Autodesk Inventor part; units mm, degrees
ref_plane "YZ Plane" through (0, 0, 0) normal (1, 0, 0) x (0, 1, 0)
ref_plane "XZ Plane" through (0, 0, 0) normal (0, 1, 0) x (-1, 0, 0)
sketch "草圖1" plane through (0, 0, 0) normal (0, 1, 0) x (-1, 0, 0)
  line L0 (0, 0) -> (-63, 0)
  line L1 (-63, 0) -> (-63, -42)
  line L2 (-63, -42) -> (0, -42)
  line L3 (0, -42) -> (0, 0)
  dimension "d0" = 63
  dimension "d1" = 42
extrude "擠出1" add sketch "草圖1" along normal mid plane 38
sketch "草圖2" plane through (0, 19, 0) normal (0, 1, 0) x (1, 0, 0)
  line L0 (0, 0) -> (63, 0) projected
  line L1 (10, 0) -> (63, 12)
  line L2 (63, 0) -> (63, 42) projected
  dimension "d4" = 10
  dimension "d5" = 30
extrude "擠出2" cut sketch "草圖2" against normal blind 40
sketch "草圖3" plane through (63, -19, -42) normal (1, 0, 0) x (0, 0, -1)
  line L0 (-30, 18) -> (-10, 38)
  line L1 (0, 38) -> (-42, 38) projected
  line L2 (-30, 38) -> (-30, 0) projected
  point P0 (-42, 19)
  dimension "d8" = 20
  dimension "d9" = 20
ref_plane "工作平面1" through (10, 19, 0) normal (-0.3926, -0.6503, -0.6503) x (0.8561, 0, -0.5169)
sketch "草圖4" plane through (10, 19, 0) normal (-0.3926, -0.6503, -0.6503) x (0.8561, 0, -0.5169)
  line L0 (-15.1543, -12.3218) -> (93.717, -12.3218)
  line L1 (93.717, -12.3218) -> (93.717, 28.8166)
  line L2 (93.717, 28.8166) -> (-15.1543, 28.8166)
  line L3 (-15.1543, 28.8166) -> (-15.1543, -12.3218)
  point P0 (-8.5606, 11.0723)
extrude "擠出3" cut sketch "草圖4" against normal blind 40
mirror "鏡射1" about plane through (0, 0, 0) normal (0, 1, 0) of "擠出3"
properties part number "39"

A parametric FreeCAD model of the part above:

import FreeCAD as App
import Part
import Sketcher

V = App.Vector
Q = App.Units.Quantity

doc = App.newDocument("Part")
body = doc.addObject("PartDesign::Body", "Body")

# Sketch on XZ plane
sketch1 = body.newObject("Sketcher::SketchObject", "Sketch")
sketch1.AttachmentSupport = (doc.getObject("XZ_Plane"), [""])
sketch1.MapMode = "FlatFace"
sketch1.addGeometry(Part.LineSegment(V(0, -42, 0), V(0, 0, 0)), False)
sketch1.addGeometry(Part.LineSegment(V(0, 0, 0), V(63, 0, 0)), False)
sketch1.addGeometry(Part.LineSegment(V(63, 0, 0), V(63, -42, 0)), False)
sketch1.addGeometry(Part.LineSegment(V(63, -42, 0), V(0, -42, 0)), False)
sketch1.addConstraint(Sketcher.Constraint("Coincident", 0, 2, 1, 1))
sketch1.addConstraint(Sketcher.Constraint("Coincident", 1, 2, 2, 1))
sketch1.addConstraint(Sketcher.Constraint("Coincident", 2, 2, 3, 1))
sketch1.addConstraint(Sketcher.Constraint("Coincident", 3, 2, 0, 1))
sketch1.addConstraint(Sketcher.Constraint("Vertical", 0))
sketch1.addConstraint(Sketcher.Constraint("Horizontal", 1))
sketch1.addConstraint(Sketcher.Constraint("Vertical", 2))
sketch1.addConstraint(Sketcher.Constraint("Horizontal", 3))
sketch1.addConstraint(Sketcher.Constraint("Coincident", 0, 2, -1, 1))
sketch1.addConstraint(Sketcher.Constraint("DistanceX", 1, 1, 1, 2, Q("63 mm")))
sketch1.addConstraint(Sketcher.Constraint("DistanceY", 0, 1, 0, 2, Q("42 mm")))
pad1 = body.newObject("PartDesign::Pad", "Pad")
pad1.Profile = sketch1
pad1.Length = 38
pad1.Midplane = True

# Sketch on XZ plane
sketch2 = body.newObject("Sketcher::SketchObject", "Sketch001")
sketch2.AttachmentSupport = (doc.getObject("XZ_Plane"), [""])
sketch2.MapMode = "FlatFace"
sketch2.AttachmentOffset = App.Placement(V(0, 0, -19), App.Rotation())
sketch2.addGeometry(Part.LineSegment(V(63, -12, 0), V(10, 0, 0)), False)
sketch2.addGeometry(Part.LineSegment(V(10, 0, 0), V(63, 0, 0)), False)
sketch2.addGeometry(Part.LineSegment(V(63, 0, 0), V(63, -12, 0)), False)
sketch2.addConstraint(Sketcher.Constraint("Coincident", 0, 2, 1, 1))
sketch2.addConstraint(Sketcher.Constraint("Coincident", 1, 2, 2, 1))
sketch2.addConstraint(Sketcher.Constraint("Coincident", 2, 2, 0, 1))
sketch2.addConstraint(Sketcher.Constraint("Horizontal", 1))
sketch2.addConstraint(Sketcher.Constraint("Vertical", 2))
sketch2.addConstraint(Sketcher.Constraint("PointOnObject", 0, 2, -1))
sketch2.addConstraint(Sketcher.Constraint("DistanceX", -1, 1, 0, 2, Q("10 mm")))
sketch2.addConstraint(Sketcher.Constraint("DistanceX", 1, 1, 1, 2, Q("53 mm")))
sketch2.addConstraint(Sketcher.Constraint("DistanceY", 2, 2, 2, 1, Q("12 mm")))
pocket1 = body.newObject("PartDesign::Pocket", "Pocket")
pocket1.Profile = sketch2
pocket1.Length = 40
pocket1.Reversed = True

# Sketch on an angled plane
sketch3 = body.newObject("Sketcher::SketchObject", "Sketch002")
sketch3.Placement = App.Placement(V(10, 19, 0), App.Rotation(V(0.856074096, 0.000022898, -0.516853115), V(0.336138768, -0.759653826, 0.556719673), V(-0.392616698, -0.650327659, -0.650327659), "ZXY"))
sketch3.addGeometry(Part.LineSegment(V(-15, 29, 0), V(-15, -12, 0)), False)
sketch3.addGeometry(Part.LineSegment(V(-15, -12, 0), V(94, -12, 0)), False)
sketch3.addGeometry(Part.LineSegment(V(94, -12, 0), V(94, 29, 0)), False)
sketch3.addGeometry(Part.LineSegment(V(94, 29, 0), V(-15, 29, 0)), False)
sketch3.addConstraint(Sketcher.Constraint("Coincident", 0, 2, 1, 1))
sketch3.addConstraint(Sketcher.Constraint("Coincident", 1, 2, 2, 1))
sketch3.addConstraint(Sketcher.Constraint("Coincident", 2, 2, 3, 1))
sketch3.addConstraint(Sketcher.Constraint("Coincident", 3, 2, 0, 1))
sketch3.addConstraint(Sketcher.Constraint("Vertical", 0))
sketch3.addConstraint(Sketcher.Constraint("Horizontal", 1))
sketch3.addConstraint(Sketcher.Constraint("Vertical", 2))
sketch3.addConstraint(Sketcher.Constraint("Horizontal", 3))
sketch3.addConstraint(Sketcher.Constraint("DistanceX", 1, 1, 1, 2, Q("108.8713 mm")))
sketch3.addConstraint(Sketcher.Constraint("DistanceY", 0, 2, 0, 1, Q("41.1384 mm")))
sketch3.addConstraint(Sketcher.Constraint("DistanceX", -1, 1, 1, 2, Q("93.717 mm")))
sketch3.addConstraint(Sketcher.Constraint("DistanceY", 0, 2, -1, 1, Q("12.3218 mm")))
pocket2 = body.newObject("PartDesign::Pocket", "Pocket001")
pocket2.Profile = sketch3
pocket2.Length = 40
doc.recompute()

mirrored = body.newObject("PartDesign::Mirrored", "Mirrored")
mirrored.Originals = [pocket2]
mirrored.MirrorPlane = (doc.getObject("XZ_Plane"), [""])
body.Tip = mirrored

doc.recompute()
